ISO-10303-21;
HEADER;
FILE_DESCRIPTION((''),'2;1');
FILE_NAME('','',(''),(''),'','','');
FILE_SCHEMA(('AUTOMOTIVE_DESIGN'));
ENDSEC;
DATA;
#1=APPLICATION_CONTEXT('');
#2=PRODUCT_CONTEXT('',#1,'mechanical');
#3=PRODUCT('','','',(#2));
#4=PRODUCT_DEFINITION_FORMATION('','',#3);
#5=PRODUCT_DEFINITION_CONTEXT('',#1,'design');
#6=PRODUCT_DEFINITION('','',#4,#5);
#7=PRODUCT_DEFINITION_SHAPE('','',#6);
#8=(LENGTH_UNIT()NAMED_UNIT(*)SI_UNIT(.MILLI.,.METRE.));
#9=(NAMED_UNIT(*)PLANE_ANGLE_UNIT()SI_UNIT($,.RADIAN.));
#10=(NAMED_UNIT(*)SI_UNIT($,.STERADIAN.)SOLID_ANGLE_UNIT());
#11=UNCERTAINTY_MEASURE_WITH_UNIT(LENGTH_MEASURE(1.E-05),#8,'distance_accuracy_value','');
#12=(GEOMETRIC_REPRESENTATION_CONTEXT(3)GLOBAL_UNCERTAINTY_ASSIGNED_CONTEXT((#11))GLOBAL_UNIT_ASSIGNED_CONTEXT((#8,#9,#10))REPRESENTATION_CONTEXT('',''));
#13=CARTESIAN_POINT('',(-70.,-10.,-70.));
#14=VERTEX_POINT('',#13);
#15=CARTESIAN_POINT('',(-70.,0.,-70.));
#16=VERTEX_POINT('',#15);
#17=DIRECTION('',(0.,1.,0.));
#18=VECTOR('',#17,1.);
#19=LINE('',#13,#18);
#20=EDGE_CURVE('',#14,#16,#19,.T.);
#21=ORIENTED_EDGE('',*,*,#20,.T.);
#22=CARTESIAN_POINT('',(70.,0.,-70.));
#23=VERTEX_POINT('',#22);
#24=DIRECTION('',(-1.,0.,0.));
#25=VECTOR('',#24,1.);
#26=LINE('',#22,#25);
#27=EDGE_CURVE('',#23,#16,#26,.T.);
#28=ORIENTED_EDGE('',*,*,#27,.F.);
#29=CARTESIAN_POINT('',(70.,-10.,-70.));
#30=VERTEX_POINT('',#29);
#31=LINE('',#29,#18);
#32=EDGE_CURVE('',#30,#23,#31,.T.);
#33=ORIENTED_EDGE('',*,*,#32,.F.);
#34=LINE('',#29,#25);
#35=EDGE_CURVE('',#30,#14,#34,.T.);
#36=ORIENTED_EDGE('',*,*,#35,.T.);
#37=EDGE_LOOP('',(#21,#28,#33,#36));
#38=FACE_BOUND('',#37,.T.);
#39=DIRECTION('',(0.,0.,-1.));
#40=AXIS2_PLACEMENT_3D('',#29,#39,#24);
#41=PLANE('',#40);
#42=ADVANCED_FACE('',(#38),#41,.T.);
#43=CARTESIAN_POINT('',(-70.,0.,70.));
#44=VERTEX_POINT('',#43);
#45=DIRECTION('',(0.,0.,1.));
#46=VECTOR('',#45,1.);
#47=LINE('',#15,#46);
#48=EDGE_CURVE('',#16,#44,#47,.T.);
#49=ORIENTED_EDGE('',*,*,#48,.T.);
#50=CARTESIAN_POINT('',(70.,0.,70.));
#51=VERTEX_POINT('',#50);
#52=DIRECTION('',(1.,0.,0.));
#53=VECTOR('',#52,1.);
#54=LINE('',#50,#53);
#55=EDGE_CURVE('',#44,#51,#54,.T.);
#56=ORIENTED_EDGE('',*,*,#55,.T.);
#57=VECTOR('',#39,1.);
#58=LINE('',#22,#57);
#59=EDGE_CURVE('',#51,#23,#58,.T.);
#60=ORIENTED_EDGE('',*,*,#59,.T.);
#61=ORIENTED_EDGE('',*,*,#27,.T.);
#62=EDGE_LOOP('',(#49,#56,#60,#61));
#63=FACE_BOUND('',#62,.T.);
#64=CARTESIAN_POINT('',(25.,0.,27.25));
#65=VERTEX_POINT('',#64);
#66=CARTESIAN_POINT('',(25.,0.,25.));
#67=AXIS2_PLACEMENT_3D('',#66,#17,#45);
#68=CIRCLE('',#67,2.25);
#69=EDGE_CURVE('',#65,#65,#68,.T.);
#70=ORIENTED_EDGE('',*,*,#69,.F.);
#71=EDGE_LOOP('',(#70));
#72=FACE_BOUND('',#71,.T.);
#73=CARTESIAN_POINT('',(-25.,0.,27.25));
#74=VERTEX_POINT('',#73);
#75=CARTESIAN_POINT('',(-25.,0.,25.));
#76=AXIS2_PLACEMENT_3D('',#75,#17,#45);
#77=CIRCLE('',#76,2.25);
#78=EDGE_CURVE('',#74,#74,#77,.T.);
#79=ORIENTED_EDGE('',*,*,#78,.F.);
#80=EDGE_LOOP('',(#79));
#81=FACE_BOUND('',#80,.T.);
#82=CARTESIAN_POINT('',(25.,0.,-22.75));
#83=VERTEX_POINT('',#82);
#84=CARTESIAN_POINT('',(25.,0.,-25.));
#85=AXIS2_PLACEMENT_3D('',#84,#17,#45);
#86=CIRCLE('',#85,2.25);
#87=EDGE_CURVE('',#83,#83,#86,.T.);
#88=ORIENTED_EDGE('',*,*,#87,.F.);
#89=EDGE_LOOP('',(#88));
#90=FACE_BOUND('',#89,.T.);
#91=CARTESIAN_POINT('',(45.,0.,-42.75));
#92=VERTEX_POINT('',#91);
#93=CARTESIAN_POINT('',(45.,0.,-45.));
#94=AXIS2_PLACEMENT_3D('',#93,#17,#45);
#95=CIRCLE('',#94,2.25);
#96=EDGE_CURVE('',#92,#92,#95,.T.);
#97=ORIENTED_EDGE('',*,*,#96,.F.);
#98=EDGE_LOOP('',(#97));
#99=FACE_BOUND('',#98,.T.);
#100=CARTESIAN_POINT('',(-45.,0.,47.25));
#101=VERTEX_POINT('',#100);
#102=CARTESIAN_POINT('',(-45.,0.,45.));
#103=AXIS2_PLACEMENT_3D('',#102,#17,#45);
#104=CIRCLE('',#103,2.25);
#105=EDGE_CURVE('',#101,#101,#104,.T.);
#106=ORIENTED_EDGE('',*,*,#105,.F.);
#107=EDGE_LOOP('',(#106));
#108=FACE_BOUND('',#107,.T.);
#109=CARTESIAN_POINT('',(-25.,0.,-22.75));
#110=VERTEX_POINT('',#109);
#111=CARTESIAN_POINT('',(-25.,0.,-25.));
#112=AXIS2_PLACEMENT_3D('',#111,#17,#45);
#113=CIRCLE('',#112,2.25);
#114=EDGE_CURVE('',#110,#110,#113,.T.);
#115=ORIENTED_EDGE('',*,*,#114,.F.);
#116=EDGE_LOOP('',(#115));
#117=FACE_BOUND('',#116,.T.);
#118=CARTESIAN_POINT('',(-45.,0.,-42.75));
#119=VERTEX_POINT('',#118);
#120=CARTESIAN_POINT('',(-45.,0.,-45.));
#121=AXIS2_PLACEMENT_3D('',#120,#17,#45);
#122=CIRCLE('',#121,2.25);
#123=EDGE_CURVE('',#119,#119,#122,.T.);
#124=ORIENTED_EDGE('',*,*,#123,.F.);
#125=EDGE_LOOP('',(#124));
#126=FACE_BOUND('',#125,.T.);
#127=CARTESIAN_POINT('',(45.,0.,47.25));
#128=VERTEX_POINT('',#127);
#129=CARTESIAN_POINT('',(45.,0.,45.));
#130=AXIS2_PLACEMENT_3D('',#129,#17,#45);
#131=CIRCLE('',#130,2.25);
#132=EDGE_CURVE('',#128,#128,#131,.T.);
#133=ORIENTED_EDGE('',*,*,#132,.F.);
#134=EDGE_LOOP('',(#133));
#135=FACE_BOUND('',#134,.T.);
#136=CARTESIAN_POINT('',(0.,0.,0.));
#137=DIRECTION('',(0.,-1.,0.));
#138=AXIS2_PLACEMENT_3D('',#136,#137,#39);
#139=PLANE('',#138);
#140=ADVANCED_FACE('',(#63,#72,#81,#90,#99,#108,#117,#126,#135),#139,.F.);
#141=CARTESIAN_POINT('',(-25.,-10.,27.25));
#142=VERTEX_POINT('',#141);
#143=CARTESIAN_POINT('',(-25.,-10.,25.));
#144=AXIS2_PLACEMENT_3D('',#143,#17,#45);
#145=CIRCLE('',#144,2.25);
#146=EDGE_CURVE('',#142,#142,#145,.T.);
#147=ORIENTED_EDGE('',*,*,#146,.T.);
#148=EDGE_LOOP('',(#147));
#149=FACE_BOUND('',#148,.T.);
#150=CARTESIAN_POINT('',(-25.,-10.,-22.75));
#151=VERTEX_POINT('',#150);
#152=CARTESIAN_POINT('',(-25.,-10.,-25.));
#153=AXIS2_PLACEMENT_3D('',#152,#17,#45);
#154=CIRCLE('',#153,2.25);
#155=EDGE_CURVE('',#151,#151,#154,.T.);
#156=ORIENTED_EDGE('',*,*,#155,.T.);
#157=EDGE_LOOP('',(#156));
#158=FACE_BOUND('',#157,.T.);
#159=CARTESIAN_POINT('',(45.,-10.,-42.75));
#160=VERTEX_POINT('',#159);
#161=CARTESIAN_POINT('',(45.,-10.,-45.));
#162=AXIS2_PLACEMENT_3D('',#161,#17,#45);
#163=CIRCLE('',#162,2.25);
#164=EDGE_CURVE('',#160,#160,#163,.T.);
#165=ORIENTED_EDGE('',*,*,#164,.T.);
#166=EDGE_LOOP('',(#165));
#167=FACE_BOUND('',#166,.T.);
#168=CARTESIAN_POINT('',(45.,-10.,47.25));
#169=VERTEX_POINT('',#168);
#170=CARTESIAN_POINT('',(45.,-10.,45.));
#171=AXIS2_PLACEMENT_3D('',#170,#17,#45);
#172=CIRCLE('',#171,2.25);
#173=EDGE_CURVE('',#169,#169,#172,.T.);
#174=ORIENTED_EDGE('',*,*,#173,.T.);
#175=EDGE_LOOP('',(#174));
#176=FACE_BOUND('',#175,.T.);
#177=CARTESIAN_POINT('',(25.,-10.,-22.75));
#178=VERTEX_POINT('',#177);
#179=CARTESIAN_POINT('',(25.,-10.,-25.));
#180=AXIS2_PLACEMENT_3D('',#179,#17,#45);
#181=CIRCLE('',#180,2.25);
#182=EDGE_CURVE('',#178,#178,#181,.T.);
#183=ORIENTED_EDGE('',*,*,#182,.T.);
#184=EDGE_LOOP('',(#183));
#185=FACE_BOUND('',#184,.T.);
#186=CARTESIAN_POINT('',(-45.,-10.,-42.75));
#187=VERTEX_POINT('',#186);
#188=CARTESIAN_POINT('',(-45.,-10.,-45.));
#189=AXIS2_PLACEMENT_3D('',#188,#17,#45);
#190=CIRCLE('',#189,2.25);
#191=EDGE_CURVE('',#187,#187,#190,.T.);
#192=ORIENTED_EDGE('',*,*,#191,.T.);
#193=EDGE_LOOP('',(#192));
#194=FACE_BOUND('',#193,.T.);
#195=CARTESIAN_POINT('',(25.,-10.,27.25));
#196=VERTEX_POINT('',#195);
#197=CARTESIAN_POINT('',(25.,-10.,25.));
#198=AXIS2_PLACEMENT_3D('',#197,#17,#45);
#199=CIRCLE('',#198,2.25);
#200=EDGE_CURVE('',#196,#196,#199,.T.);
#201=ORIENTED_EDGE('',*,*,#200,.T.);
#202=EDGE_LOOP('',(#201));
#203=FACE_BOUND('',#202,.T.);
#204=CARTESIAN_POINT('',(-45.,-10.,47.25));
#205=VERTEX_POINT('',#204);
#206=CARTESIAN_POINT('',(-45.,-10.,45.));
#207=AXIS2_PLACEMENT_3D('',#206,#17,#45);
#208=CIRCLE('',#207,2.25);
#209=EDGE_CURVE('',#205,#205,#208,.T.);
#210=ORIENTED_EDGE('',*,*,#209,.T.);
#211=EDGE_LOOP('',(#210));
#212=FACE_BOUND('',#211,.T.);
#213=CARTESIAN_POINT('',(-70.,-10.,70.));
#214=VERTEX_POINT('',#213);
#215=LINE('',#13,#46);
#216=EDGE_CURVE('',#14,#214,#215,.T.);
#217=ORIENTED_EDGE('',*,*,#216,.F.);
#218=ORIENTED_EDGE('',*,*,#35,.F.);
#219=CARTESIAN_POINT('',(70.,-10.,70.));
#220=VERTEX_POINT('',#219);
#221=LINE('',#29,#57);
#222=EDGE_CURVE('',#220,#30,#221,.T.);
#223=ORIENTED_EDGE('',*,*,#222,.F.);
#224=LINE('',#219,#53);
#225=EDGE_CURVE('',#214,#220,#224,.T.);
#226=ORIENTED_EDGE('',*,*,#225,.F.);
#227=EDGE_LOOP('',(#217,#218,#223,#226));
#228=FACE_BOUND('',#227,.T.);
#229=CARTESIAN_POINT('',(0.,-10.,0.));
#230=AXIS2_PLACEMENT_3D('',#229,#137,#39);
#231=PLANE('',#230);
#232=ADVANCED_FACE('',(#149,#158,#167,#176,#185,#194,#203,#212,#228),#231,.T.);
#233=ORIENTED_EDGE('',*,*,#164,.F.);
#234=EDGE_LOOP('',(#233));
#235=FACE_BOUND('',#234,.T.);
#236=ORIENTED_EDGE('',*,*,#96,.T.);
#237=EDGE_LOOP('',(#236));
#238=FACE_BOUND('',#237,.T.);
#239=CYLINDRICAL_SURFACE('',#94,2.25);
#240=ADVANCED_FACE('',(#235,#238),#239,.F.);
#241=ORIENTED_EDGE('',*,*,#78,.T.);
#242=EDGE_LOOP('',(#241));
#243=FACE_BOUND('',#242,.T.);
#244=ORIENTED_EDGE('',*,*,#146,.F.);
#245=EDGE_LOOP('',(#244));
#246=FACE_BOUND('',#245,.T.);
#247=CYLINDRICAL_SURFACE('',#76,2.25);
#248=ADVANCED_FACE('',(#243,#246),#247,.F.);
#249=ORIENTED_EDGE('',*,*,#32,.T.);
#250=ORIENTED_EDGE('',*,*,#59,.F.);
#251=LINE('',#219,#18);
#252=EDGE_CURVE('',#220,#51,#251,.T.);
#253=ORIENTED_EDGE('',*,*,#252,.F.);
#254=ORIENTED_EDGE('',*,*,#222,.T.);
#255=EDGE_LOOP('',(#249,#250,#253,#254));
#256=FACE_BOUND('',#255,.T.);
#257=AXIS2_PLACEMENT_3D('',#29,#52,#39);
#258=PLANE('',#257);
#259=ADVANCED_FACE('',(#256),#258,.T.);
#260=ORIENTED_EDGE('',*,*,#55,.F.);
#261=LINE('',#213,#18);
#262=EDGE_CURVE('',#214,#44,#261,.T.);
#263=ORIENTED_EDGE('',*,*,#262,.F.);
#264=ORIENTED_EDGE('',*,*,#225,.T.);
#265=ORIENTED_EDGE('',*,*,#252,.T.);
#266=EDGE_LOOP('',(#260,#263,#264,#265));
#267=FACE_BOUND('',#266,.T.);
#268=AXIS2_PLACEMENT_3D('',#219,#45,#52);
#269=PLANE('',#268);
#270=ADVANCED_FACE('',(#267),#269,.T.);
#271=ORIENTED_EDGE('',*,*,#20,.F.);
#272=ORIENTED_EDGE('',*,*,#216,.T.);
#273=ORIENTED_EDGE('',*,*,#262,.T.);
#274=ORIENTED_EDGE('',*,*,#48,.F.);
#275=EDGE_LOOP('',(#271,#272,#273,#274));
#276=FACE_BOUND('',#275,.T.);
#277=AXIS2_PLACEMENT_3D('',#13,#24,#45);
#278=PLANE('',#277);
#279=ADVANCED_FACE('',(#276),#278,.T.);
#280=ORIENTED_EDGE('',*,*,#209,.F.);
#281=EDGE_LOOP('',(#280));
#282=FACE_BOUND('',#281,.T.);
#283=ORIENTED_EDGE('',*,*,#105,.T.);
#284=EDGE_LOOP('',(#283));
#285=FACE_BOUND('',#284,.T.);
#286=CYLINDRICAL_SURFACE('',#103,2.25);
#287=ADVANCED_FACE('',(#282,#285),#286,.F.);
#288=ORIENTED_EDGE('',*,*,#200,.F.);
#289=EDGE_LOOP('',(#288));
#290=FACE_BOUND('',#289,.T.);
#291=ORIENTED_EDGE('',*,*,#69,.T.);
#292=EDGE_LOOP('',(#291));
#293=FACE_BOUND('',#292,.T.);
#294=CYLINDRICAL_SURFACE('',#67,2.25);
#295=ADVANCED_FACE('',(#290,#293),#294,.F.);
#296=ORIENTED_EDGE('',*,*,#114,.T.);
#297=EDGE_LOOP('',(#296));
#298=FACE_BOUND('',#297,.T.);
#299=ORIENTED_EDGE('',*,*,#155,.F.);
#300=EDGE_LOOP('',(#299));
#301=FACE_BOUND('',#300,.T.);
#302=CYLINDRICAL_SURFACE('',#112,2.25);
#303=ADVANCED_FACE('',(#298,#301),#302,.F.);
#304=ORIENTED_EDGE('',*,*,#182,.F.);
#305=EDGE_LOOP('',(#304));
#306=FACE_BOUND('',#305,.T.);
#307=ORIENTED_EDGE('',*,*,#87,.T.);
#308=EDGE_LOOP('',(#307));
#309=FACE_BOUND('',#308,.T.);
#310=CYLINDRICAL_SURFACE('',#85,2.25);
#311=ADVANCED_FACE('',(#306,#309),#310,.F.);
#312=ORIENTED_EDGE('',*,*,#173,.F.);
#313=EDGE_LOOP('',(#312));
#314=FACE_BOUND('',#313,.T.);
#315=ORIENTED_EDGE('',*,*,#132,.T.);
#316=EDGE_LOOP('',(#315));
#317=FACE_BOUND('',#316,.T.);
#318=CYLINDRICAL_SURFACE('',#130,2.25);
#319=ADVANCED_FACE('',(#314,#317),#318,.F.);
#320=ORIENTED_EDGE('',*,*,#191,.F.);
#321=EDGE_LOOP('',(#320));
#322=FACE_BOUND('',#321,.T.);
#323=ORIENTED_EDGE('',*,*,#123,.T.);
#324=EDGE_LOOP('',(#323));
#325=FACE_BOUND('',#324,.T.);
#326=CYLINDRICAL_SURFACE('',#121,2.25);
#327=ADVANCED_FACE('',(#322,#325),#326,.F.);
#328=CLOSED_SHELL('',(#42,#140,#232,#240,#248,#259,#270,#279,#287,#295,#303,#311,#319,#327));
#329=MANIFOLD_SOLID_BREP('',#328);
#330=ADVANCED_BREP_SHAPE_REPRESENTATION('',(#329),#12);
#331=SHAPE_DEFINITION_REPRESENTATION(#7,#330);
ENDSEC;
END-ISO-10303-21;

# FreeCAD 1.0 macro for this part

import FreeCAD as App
import Part
import Sketcher
from FreeCAD import Vector

doc = App.newDocument("Part")
body = doc.addObject("PartDesign::Body", "Body")

# Sketch on XZ plane
sketch1 = doc.addObject("Sketcher::SketchObject", "Sketch")
body.addObject(sketch1)
sketch1.AttachmentSupport = (doc.XZ_Plane, [""])
sketch1.MapMode = "FlatFace"
sketch1.addGeometry([
    Part.LineSegment(Vector(-70, -70, 0), Vector(-70, 70, 0)),
    Part.LineSegment(Vector(-70, 70, 0), Vector(70, 70, 0)),
    Part.LineSegment(Vector(70, 70, 0), Vector(70, -70, 0)),
    Part.LineSegment(Vector(70, -70, 0), Vector(-70, -70, 0)),
], False)
sketch1.addConstraint([
    Sketcher.Constraint("Coincident", 0, 2, 1, 1),
    Sketcher.Constraint("Coincident", 1, 2, 2, 1),
    Sketcher.Constraint("Coincident", 2, 2, 3, 1),
    Sketcher.Constraint("Coincident", 3, 2, 0, 1),
    Sketcher.Constraint("Vertical", 0),
    Sketcher.Constraint("Horizontal", 1),
    Sketcher.Constraint("Vertical", 2),
    Sketcher.Constraint("Horizontal", 3),
    Sketcher.Constraint("Symmetric", 0, 2, 2, 2, -1, 1),
    Sketcher.Constraint("Equal", 3, 0),
    Sketcher.Constraint("DistanceX", 1, 1, 1, 2, 140.0),
])
pad1 = doc.addObject("PartDesign::Pad", "Pad")
body.addObject(pad1)
pad1.Profile = sketch1
pad1.Length = 10

# Sketch on XZ plane
sketch2 = doc.addObject("Sketcher::SketchObject", "Sketch001")
body.addObject(sketch2)
sketch2.AttachmentSupport = (doc.XZ_Plane, [""])
sketch2.MapMode = "FlatFace"
sketch2.addGeometry([
    Part.Circle(Vector(-45, -45, 0), Vector(0, 0, 1), 2.2),  # 0
    Part.Circle(Vector(-45, 45, 0), Vector(0, 0, 1), 2.2),  # 1
    Part.Circle(Vector(45, 45, 0), Vector(0, 0, 1), 2.2),  # 2
    Part.Circle(Vector(45, -45, 0), Vector(0, 0, 1), 2.2),  # 3
    Part.Circle(Vector(25, -25, 0), Vector(0, 0, 1), 2.2),  # 4
    Part.Circle(Vector(-25, -25, 0), Vector(0, 0, 1), 2.2),  # 5
    Part.Circle(Vector(-25, 25, 0), Vector(0, 0, 1), 2.2),  # 6
    Part.Circle(Vector(25, 25, 0), Vector(0, 0, 1), 2.2),  # 7
], False)
sketch2.addConstraint([
    Sketcher.Constraint("Equal", 0, 1),
    Sketcher.Constraint("Equal", 1, 2),
    Sketcher.Constraint("Equal", 2, 3),
    Sketcher.Constraint("Equal", 3, 4),
    Sketcher.Constraint("Equal", 4, 5),
    Sketcher.Constraint("Equal", 5, 6),
    Sketcher.Constraint("Equal", 6, 7),
    Sketcher.Constraint("Symmetric", 0, 3, 2, 3, -1, 1),
    Sketcher.Constraint("Symmetric", 1, 3, 3, 3, -1, 1),
    Sketcher.Constraint("Symmetric", 4, 3, 6, 3, -1, 1),
    Sketcher.Constraint("Symmetric", 5, 3, 7, 3, -1, 1),
    Sketcher.Constraint("Symmetric", 1, 3, 2, 3, -2),
    Sketcher.Constraint("Symmetric", 4, 3, 5, 3, -2),
    Sketcher.Constraint("Diameter", 0, 4.5),
    Sketcher.Constraint("DistanceX", 0, 3, -1, 1, 45.0),
    Sketcher.Constraint("DistanceY", 0, 3, -1, 1, 45.0),
    Sketcher.Constraint("DistanceX", -1, 1, 4, 3, 25.0),
    Sketcher.Constraint("DistanceY", 4, 3, -1, 1, 25.0),
])
doc.recompute()
hole = doc.addObject("PartDesign::Hole", "Hole")
body.addObject(hole)
hole.Profile = sketch2
hole.ThreadType = "None"
hole.Diameter = 4.5
hole.DepthType = "ThroughAll"
hole.Reversed = True

doc.recompute()
